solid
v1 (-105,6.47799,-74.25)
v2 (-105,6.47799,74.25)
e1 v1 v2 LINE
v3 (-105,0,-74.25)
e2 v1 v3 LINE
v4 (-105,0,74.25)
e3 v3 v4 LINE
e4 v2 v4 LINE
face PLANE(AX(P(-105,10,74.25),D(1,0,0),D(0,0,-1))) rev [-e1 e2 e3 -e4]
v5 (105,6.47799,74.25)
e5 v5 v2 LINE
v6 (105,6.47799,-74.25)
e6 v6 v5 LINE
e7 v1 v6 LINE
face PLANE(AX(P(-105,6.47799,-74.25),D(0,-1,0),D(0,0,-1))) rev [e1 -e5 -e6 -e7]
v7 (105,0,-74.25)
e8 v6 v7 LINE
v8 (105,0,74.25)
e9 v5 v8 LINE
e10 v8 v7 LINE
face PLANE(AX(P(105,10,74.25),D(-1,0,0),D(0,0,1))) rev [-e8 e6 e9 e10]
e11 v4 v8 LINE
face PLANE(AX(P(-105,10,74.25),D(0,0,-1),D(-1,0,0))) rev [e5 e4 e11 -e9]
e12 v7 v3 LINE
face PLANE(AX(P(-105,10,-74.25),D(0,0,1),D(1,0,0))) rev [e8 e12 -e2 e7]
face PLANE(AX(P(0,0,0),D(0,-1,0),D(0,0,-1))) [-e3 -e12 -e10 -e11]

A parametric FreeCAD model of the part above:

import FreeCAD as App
import Part
import Sketcher
from FreeCAD import Vector

doc = App.newDocument("Part")
body = doc.addObject("PartDesign::Body", "Body")

sketch1 = body.newObject("Sketcher::SketchObject", "Sketch")
sketch1.AttachmentSupport = (doc.getObject("XZ_Plane"), [""])
sketch1.MapMode = "FlatFace"
sketch1.addGeometry(Part.LineSegment(Vector(-105, -74, 0), Vector(-105, 74, 0)), False)
sketch1.addGeometry(Part.LineSegment(Vector(-105, 74, 0), Vector(105, 74, 0)), False)
sketch1.addGeometry(Part.LineSegment(Vector(105, 74, 0), Vector(105, -74, 0)), False)
sketch1.addGeometry(Part.LineSegment(Vector(105, -74, 0), Vector(-105, -74, 0)), False)
sketch1.addConstraint(Sketcher.Constraint("Coincident", 0, 2, 1, 1))
sketch1.addConstraint(Sketcher.Constraint("Coincident", 1, 2, 2, 1))
sketch1.addConstraint(Sketcher.Constraint("Coincident", 2, 2, 3, 1))
sketch1.addConstraint(Sketcher.Constraint("Coincident", 3, 2, 0, 1))
sketch1.addConstraint(Sketcher.Constraint("Vertical", 0))
sketch1.addConstraint(Sketcher.Constraint("Horizontal", 1))
sketch1.addConstraint(Sketcher.Constraint("Vertical", 2))
sketch1.addConstraint(Sketcher.Constraint("Horizontal", 3))
sketch1.addConstraint(Sketcher.Constraint("Symmetric", 0, 2, 2, 2, -1, 1))
sketch1.addConstraint(Sketcher.Constraint("DistanceX", 1, 1, 1, 2, 210.0))
sketch1.addConstraint(Sketcher.Constraint("DistanceY", 0, 1, 0, 2, 148.5))
pad1 = body.newObject("PartDesign::Pad", "Pad")
pad1.Profile = sketch1
pad1.Length = 10
pad1.Reversed = True

sketch2 = body.newObject("Sketcher::SketchObject", "Sketch001")
sketch2.AttachmentSupport = (doc.getObject("XY_Plane"), [""])
sketch2.MapMode = "FlatFace"
sketch2.AttachmentOffset = App.Placement(Vector(0, 0, 74.25), App.Rotation())
sketch2.addGeometry(Part.LineSegment(Vector(-105, 10, 0), Vector(-105, 6.5, 0)), False)
sketch2.addGeometry(Part.LineSegment(Vector(-105, 6.5, 0), Vector(105, 6.5, 0)), False)
sketch2.addGeometry(Part.LineSegment(Vector(105, 6.5, 0), Vector(105, 10, 0)), False)
sketch2.addGeometry(Part.LineSegment(Vector(105, 10, 0), Vector(-105, 10, 0)), False)
sketch2.addConstraint(Sketcher.Constraint("Coincident", 0, 2, 1, 1))
sketch2.addConstraint(Sketcher.Constraint("Coincident", 1, 2, 2, 1))
sketch2.addConstraint(Sketcher.Constraint("Coincident", 2, 2, 3, 1))
sketch2.addConstraint(Sketcher.Constraint("Coincident", 3, 2, 0, 1))
sketch2.addConstraint(Sketcher.Constraint("Vertical", 0))
sketch2.addConstraint(Sketcher.Constraint("Horizontal", 1))
sketch2.addConstraint(Sketcher.Constraint("Vertical", 2))
sketch2.addConstraint(Sketcher.Constraint("Horizontal", 3))
sketch2.addConstraint(Sketcher.Constraint("DistanceX", 1, 1, 1, 2, 210.0))
sketch2.addConstraint(Sketcher.Constraint("DistanceX", 0, 2, -1, 1, 105.0))
sketch2.addConstraint(Sketcher.Constraint("DistanceY", -1, 1, 2, 2, 10.0))
sketch2.addConstraint(Sketcher.Constraint("DistanceY", 0, 2, 0, 1, 3.52201))
pocket1 = body.newObject("PartDesign::Pocket", "Pocket")
pocket1.Profile = sketch2
pocket1.Type = "ThroughAll"
pocket1.Midplane = True

doc.recompute()
